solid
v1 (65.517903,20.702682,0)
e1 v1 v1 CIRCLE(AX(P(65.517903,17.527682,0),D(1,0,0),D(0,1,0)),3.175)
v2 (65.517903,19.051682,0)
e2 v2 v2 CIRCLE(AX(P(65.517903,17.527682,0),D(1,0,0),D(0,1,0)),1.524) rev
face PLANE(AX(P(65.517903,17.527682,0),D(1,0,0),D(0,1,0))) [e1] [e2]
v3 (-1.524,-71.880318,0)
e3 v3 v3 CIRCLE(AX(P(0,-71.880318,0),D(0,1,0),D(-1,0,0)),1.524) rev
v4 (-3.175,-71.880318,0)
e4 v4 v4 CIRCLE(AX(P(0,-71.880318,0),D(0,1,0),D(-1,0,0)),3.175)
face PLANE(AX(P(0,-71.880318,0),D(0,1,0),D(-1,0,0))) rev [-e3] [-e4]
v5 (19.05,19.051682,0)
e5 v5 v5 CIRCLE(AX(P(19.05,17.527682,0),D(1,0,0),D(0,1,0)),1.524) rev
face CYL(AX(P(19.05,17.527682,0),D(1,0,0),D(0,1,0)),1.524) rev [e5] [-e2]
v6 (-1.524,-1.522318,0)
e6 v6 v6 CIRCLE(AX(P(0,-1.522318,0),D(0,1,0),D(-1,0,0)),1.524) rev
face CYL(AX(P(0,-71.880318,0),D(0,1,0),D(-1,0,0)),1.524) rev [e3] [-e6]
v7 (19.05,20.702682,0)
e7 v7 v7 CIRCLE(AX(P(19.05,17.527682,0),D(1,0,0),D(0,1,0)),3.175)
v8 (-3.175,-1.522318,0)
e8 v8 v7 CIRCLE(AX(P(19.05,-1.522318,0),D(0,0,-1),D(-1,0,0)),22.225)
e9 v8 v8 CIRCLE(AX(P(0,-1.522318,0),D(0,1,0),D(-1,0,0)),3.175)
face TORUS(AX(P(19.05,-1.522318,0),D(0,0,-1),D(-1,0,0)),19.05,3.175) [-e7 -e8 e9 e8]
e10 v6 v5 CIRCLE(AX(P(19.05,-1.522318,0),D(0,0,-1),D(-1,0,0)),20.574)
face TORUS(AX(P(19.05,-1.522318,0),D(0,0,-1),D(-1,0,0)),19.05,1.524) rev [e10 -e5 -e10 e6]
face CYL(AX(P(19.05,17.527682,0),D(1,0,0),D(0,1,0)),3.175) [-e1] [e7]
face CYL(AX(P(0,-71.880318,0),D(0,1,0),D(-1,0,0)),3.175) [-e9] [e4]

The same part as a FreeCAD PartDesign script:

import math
import FreeCAD as App
import Part
import Sketcher
from FreeCAD import Vector
Q = App.Units.Quantity

doc = App.newDocument("Part")
body = doc.addObject("PartDesign::Body", "Body")

# Sketch on YZ plane
sketch1 = body.newObject("Sketcher::SketchObject", "Sketch")
sketch1.AttachmentSupport = (doc.getObject("YZ_Plane"), [""])
sketch1.MapMode = "FlatFace"
sketch1.AttachmentOffset = App.Placement(Vector(0, 0, 65.517903), App.Rotation())
sketch1.addGeometry(Part.Circle(Vector(17.527682, 0, 0), Vector(0, 0, 1), 3.175), False)
sketch1.addGeometry(Part.Circle(Vector(17.527682, 0, 0), Vector(0, 0, 1), 1.524), False)
sketch1.addConstraint(Sketcher.Constraint("Coincident", 1, 3, 0, 3))
sketch1.addConstraint(Sketcher.Constraint("PointOnObject", 0, 3, -1))
sketch1.addConstraint(Sketcher.Constraint("Diameter", 0, Q("0.25 in")))
sketch1.addConstraint(Sketcher.Constraint("Diameter", 1, Q("0.12 in")))
sketch1.addConstraint(Sketcher.Constraint("DistanceX", -1, 1, 0, 3, 17.527682))

# Sketch on XY plane
sketch2 = body.newObject("Sketcher::SketchObject", "Sketch001")
sketch2.AttachmentSupport = (doc.getObject("XY_Plane"), [""])
sketch2.MapMode = "FlatFace"
sketch2.addGeometry(Part.LineSegment(Vector(0, -71.880318, 0), Vector(0, -1.522318, 0)), False)
sketch2.addGeometry(Part.ArcOfCircle(Part.Circle(Vector(19.05, -1.522318, 0), Vector(0, 0, 1), 19.05), math.radians(90), math.radians(180)), False)
sketch2.addGeometry(Part.LineSegment(Vector(19.05, 17.527682, 0), Vector(65.517903, 17.527682, 0)), False)
sketch2.addConstraint(Sketcher.Constraint("Tangent", 0, 2, 1, 2))
sketch2.addConstraint(Sketcher.Constraint("Tangent", 1, 1, 2, 1))
sketch2.addConstraint(Sketcher.Constraint("Vertical", 0))
sketch2.addConstraint(Sketcher.Constraint("Horizontal", 2))
sketch2.addConstraint(Sketcher.Constraint("PointOnObject", 0, 1, -2))
sketch2.addConstraint(Sketcher.Constraint("Radius", 1, Q("0.75 in")))
sketch2.addConstraint(Sketcher.Constraint("DistanceY", 0, 1, 0, 2, Q("2.77 in")))
sketch2.addConstraint(Sketcher.Constraint("DistanceX", 2, 1, 2, 2, 46.467903))
sketch2.addConstraint(Sketcher.Constraint("DistanceY", 1, 3, -1, 1, 1.522318))
doc.recompute()

additivepipe = body.newObject("PartDesign::AdditivePipe", "AdditivePipe")
additivepipe.Profile = sketch1
additivepipe.Spine = (sketch2, ["Edge1", "Edge2", "Edge3"])

doc.recompute()
